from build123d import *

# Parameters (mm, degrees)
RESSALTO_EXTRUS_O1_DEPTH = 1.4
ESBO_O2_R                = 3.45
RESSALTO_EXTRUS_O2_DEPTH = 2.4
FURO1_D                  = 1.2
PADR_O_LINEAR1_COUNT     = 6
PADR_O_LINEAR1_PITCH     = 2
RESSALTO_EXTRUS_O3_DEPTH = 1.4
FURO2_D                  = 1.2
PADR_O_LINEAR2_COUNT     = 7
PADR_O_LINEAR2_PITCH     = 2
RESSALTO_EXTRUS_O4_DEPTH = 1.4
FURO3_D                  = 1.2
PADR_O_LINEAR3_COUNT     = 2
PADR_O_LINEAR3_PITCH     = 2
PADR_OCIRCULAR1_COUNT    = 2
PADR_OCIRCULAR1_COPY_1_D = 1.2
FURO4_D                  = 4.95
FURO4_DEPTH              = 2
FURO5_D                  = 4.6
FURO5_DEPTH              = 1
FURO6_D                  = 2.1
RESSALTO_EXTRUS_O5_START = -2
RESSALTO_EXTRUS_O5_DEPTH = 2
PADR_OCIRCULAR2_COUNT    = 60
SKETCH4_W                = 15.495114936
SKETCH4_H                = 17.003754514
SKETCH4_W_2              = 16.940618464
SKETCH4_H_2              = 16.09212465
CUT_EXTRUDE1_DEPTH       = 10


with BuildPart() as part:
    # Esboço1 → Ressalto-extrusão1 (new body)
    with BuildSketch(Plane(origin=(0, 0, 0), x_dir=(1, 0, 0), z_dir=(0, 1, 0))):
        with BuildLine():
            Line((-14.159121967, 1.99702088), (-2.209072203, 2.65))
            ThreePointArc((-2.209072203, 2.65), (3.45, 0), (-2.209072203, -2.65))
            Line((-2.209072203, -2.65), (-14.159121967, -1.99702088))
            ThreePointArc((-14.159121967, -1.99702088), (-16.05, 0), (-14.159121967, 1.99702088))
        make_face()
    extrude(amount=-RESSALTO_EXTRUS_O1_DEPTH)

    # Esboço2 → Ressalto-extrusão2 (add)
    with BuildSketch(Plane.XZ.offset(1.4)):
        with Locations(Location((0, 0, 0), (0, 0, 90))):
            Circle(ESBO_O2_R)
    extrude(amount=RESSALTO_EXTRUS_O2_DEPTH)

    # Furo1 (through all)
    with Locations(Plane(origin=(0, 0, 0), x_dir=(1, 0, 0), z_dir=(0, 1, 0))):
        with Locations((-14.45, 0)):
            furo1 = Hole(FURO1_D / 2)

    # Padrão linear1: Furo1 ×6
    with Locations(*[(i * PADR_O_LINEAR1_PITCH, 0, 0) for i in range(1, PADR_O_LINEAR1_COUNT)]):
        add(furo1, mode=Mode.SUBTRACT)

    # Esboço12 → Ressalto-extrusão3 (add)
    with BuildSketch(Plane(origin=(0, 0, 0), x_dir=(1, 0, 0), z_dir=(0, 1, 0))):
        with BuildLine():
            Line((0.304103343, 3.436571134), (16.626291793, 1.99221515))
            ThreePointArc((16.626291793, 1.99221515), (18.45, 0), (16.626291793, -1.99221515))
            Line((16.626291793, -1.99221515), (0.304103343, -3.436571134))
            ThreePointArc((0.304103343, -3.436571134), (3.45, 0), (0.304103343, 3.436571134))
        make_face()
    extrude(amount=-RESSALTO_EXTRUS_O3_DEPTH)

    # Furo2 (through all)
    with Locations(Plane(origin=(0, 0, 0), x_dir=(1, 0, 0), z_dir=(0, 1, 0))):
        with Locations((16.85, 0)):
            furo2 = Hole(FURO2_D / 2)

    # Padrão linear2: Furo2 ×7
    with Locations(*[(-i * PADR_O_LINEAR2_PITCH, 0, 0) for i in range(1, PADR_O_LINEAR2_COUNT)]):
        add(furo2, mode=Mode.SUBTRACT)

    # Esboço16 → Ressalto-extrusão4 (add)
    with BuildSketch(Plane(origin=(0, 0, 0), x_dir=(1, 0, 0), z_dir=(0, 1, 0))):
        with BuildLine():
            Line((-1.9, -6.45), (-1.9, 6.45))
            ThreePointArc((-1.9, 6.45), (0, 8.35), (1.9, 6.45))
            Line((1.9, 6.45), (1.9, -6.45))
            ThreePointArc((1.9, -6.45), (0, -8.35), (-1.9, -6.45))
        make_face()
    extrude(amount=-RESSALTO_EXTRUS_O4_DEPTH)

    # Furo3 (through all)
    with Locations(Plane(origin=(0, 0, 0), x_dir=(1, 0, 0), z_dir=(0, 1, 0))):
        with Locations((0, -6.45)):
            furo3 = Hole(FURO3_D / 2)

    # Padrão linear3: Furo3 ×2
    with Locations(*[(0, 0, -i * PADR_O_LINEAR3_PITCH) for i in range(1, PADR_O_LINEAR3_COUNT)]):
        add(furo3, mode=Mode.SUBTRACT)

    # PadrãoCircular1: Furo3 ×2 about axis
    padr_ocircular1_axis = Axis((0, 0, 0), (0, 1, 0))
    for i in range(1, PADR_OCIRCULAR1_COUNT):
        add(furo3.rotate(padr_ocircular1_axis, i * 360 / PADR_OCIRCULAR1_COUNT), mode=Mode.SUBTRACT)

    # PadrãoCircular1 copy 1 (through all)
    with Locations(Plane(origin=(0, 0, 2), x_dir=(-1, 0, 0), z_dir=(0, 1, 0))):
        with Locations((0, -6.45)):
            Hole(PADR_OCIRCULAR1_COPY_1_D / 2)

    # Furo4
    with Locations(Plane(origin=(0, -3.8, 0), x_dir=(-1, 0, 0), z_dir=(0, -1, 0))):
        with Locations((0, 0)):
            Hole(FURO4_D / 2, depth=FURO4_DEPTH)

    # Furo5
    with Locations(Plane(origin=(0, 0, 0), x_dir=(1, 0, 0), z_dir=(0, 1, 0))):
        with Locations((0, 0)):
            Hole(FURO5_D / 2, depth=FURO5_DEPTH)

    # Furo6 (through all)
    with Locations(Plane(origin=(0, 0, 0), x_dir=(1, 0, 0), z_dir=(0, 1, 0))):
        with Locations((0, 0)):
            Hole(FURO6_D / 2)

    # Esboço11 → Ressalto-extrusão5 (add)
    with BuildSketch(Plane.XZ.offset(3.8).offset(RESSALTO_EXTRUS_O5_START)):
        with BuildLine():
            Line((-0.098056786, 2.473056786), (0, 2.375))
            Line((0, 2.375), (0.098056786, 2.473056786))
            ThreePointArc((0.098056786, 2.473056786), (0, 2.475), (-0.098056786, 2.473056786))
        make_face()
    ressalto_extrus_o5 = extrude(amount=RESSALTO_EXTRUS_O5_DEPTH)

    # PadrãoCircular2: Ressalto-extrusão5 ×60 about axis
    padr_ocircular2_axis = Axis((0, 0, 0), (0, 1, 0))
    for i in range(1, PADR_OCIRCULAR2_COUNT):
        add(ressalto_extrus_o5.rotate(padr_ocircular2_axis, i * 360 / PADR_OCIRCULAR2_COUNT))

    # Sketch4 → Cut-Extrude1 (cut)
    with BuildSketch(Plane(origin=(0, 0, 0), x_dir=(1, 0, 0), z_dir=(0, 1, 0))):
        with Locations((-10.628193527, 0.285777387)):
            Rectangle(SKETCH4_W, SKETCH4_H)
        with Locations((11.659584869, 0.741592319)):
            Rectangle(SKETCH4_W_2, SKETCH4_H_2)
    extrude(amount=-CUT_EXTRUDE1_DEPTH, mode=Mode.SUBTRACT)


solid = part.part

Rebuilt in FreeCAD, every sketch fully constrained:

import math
import FreeCAD as App
import Part
import Sketcher
from FreeCAD import Vector
Q = App.Units.Quantity


def add_polygon(sketch, points):
    """Adds a closed chain of lines whose ends are joined by coincident constraints."""
    first, n = sketch.GeometryCount, len(points)
    for a, b in zip(points, points[1:] + points[:1]):
        sketch.addGeometry(Part.LineSegment(App.Vector(*a, 0), App.Vector(*b, 0)), False)
    for i in range(n):
        sketch.addConstraint(Sketcher.Constraint("Coincident", first + i, 2, first + (i + 1) % n, 1))

doc = App.newDocument("Part")
body = doc.addObject("PartDesign::Body", "Body")

sketch1 = body.newObject("Sketcher::SketchObject", "Sketch")
sketch1.AttachmentSupport = (doc.getObject("XZ_Plane"), [""])
sketch1.MapMode = "FlatFace"
sketch1.addGeometry([
    Part.LineSegment(Vector(-2.2, -2.6, 0), Vector(-14.2, -2, 0)),
    Part.ArcOfCircle(Part.Circle(Vector(-14.1, 0, 0), Vector(0, 0, 1), 2), math.radians(93), math.radians(267)),
    Part.LineSegment(Vector(-14.2, 2, 0), Vector(-2.2, 2.6, 0)),
    Part.ArcOfCircle(Part.Circle(Vector(0, 0, 0), Vector(0, 0, 1), 3.5), math.radians(-130), math.radians(130)),
], False)
sketch1.addConstraint([
    Sketcher.Constraint("Tangent", 0, 2, 1, 2),
    Sketcher.Constraint("Tangent", 1, 1, 2, 1),
    Sketcher.Constraint("Coincident", 2, 2, 3, 2),
    Sketcher.Constraint("Coincident", 3, 1, 0, 1),
    Sketcher.Constraint("Coincident", 3, 3, -1, 1),
    Sketcher.Constraint("Symmetric", 0, 2, 1, 1, -1),
    Sketcher.Constraint("Radius", 1, Q("2 mm")),
    Sketcher.Constraint("Radius", 3, Q("3.45 mm")),
    Sketcher.Constraint("DistanceY", 3, 1, 2, 2, Q("5.3 mm")),
    Sketcher.Constraint("DistanceX", 1, 3, -1, 1, Q("14.05 mm")),
])
pad1 = body.newObject("PartDesign::Pad", "Pad")
pad1.Profile = sketch1
pad1.Length = 1.4

sketch2 = body.newObject("Sketcher::SketchObject", "Sketch001")
sketch2.AttachmentSupport = (doc.getObject("XZ_Plane"), [""])
sketch2.MapMode = "FlatFace"
sketch2.AttachmentOffset = App.Placement(Vector(0, 0, 1.4), App.Rotation())
sketch2.addGeometry(Part.Circle(Vector(0, 0, 0), Vector(0, 0, 1), 3.5), False)
sketch2.addConstraint([
    Sketcher.Constraint("Coincident", 0, 3, -1, 1),
    Sketcher.Constraint("Diameter", 0, Q("6.9 mm")),
])
pad2 = body.newObject("PartDesign::Pad", "Pad001")
pad2.Profile = sketch2
pad2.Length = 2.4

sketch3 = body.newObject("Sketcher::SketchObject", "Sketch002")
sketch3.AttachmentSupport = (doc.getObject("XZ_Plane"), [""])
sketch3.MapMode = "FlatFace"
sketch3.addGeometry(Part.Circle(Vector(-14.4, 0, 0), Vector(0, 0, 1), 0.6), False)
sketch3.addConstraint([
    Sketcher.Constraint("PointOnObject", 0, 3, -1),
    Sketcher.Constraint("Diameter", 0, Q("1.2 mm")),
    Sketcher.Constraint("DistanceX", 0, 3, -1, 1, Q("14.45 mm")),
])
doc.recompute()
hole = body.newObject("PartDesign::Hole", "Hole")
hole.Profile = sketch3
hole.ThreadType = "None"
hole.Diameter = 1.2
hole.DepthType = "ThroughAll"
hole.Reversed = True
doc.recompute()

linearpattern = body.newObject("PartDesign::LinearPattern", "LinearPattern")
linearpattern.Originals = [hole]
linearpattern.Direction = (doc.getObject("X_Axis"), [""])
linearpattern.Mode = "offset"
linearpattern.Offset = 2
linearpattern.Occurrences = 6
body.Tip = linearpattern

sketch4 = body.newObject("Sketcher::SketchObject", "Sketch003")
sketch4.AttachmentSupport = (doc.getObject("XZ_Plane"), [""])
sketch4.MapMode = "FlatFace"
sketch4.addGeometry([
    Part.LineSegment(Vector(16.6, -2, 0), Vector(0.3, -3.4, 0)),
    Part.ArcOfCircle(Part.Circle(Vector(0, 0, 0), Vector(0, 0, 1), 3.5), math.radians(-85), math.radians(85)),
    Part.LineSegment(Vector(0.3, 3.4, 0), Vector(16.6, 2, 0)),
    Part.ArcOfCircle(Part.Circle(Vector(16.4, 0, 0), Vector(0, 0, 1), 2), math.radians(-85), math.radians(85)),
], False)
sketch4.addConstraint([
    Sketcher.Constraint("Tangent", 0, 2, 1, 1),
    Sketcher.Constraint("Tangent", 1, 2, 2, 1),
    Sketcher.Constraint("Tangent", 2, 2, 3, 2),
    Sketcher.Constraint("Tangent", 3, 1, 0, 1),
    Sketcher.Constraint("Coincident", 1, 3, -1, 1),
    Sketcher.Constraint("PointOnObject", 3, 3, -1),
    Sketcher.Constraint("Radius", 3, Q("2 mm")),
    Sketcher.Constraint("Radius", 1, Q("3.45 mm")),
    Sketcher.Constraint("DistanceX", -1, 1, 3, 3, Q("16.45 mm")),
])
pad3 = body.newObject("PartDesign::Pad", "Pad002")
pad3.Profile = sketch4
pad3.Length = 1.4

sketch5 = body.newObject("Sketcher::SketchObject", "Sketch004")
sketch5.AttachmentSupport = (doc.getObject("XZ_Plane"), [""])
sketch5.MapMode = "FlatFace"
sketch5.addGeometry(Part.Circle(Vector(16.9, 0, 0), Vector(0, 0, 1), 0.6), False)
sketch5.addConstraint([
    Sketcher.Constraint("PointOnObject", 0, 3, -1),
    Sketcher.Constraint("Diameter", 0, Q("1.2 mm")),
    Sketcher.Constraint("DistanceX", -1, 1, 0, 3, Q("16.85 mm")),
])
doc.recompute()
hole2 = body.newObject("PartDesign::Hole", "Hole001")
hole2.Profile = sketch5
hole2.ThreadType = "None"
hole2.Diameter = 1.2
hole2.DepthType = "ThroughAll"
hole2.Reversed = True
doc.recompute()

linearpattern2 = body.newObject("PartDesign::LinearPattern", "LinearPattern001")
linearpattern2.Originals = [hole2]
linearpattern2.Direction = (doc.getObject("X_Axis"), [""])
linearpattern2.Mode = "offset"
linearpattern2.Offset = 2
linearpattern2.Occurrences = 7
linearpattern2.Reversed = True
body.Tip = linearpattern2

sketch6 = body.newObject("Sketcher::SketchObject", "Sketch005")
sketch6.AttachmentSupport = (doc.getObject("XZ_Plane"), [""])
sketch6.MapMode = "FlatFace"
sketch6.addGeometry([
    Part.LineSegment(Vector(-1.9, -6.5, 0), Vector(-1.9, 6.5, 0)),
    Part.ArcOfCircle(Part.Circle(Vector(0, 6.5, 0), Vector(0, 0, 1), 1.9), math.radians(0), math.radians(180)),
    Part.LineSegment(Vector(1.9, 6.5, 0), Vector(1.9, -6.5, 0)),
    Part.ArcOfCircle(Part.Circle(Vector(0, -6.5, 0), Vector(0, 0, 1), 1.9), math.radians(180), math.radians(360)),
], False)
sketch6.addConstraint([
    Sketcher.Constraint("Tangent", 0, 2, 1, 2),
    Sketcher.Constraint("Tangent", 1, 1, 2, 1),
    Sketcher.Constraint("Tangent", 2, 2, 3, 2),
    Sketcher.Constraint("Tangent", 3, 1, 0, 1),
    Sketcher.Constraint("Vertical", 0),
    Sketcher.Constraint("Vertical", 2),
    Sketcher.Constraint("Symmetric", 1, 3, 3, 3, -1, 1),
    Sketcher.Constraint("Radius", 1, Q("1.9 mm")),
    Sketcher.Constraint("DistanceY", 0, 1, 0, 2, Q("12.9 mm")),
])
pad4 = body.newObject("PartDesign::Pad", "Pad003")
pad4.Profile = sketch6
pad4.Length = 1.4

sketch7 = body.newObject("Sketcher::SketchObject", "Sketch006")
sketch7.AttachmentSupport = (doc.getObject("XZ_Plane"), [""])
sketch7.MapMode = "FlatFace"
sketch7.addGeometry(Part.Circle(Vector(0, 6.5, 0), Vector(0, 0, 1), 0.6), False)
sketch7.addConstraint([
    Sketcher.Constraint("PointOnObject", 0, 3, -2),
    Sketcher.Constraint("Diameter", 0, Q("1.2 mm")),
    Sketcher.Constraint("DistanceY", -1, 1, 0, 3, Q("6.45 mm")),
])
doc.recompute()
hole3 = body.newObject("PartDesign::Hole", "Hole002")
hole3.Profile = sketch7
hole3.ThreadType = "None"
hole3.Diameter = 1.2
hole3.DepthType = "ThroughAll"
hole3.Reversed = True
doc.recompute()

linearpattern3 = body.newObject("PartDesign::LinearPattern", "LinearPattern002")
linearpattern3.Originals = [hole3]
linearpattern3.Direction = (doc.getObject("Z_Axis"), [""])
linearpattern3.Mode = "offset"
linearpattern3.Offset = 2
linearpattern3.Occurrences = 2
linearpattern3.Reversed = True
body.Tip = linearpattern3
doc.recompute()

polarpattern = body.newObject("PartDesign::PolarPattern", "PolarPattern")
polarpattern.Originals = [hole3]
polarpattern.Axis = (doc.getObject("Y_Axis"), [""])
polarpattern.Angle = 360
polarpattern.Occurrences = 2
body.Tip = polarpattern

sketch8 = body.newObject("Sketcher::SketchObject", "Sketch007")
sketch8.AttachmentSupport = (doc.getObject("XZ_Plane"), [""])
sketch8.MapMode = "FlatFace"
sketch8.addGeometry(Part.Circle(Vector(0, -4.5, 0), Vector(0, 0, 1), 0.6), False)
sketch8.addConstraint([
    Sketcher.Constraint("PointOnObject", 0, 3, -2),
    Sketcher.Constraint("Diameter", 0, Q("1.2 mm")),
    Sketcher.Constraint("DistanceY", 0, 3, -1, 1, Q("4.45 mm")),
])
doc.recompute()
hole4 = body.newObject("PartDesign::Hole", "Hole003")
hole4.Profile = sketch8
hole4.ThreadType = "None"
hole4.Diameter = 1.2
hole4.DepthType = "ThroughAll"
hole4.Reversed = True

sketch9 = body.newObject("Sketcher::SketchObject", "Sketch008")
sketch9.AttachmentSupport = (doc.getObject("XZ_Plane"), [""])
sketch9.MapMode = "FlatFace"
sketch9.AttachmentOffset = App.Placement(Vector(0, 0, 3.8), App.Rotation())
sketch9.addGeometry(Part.Circle(Vector(0, 0, 0), Vector(0, 0, 1), 2.5), False)
sketch9.addConstraint([
    Sketcher.Constraint("Coincident", 0, 3, -1, 1),
    Sketcher.Constraint("Diameter", 0, Q("4.95 mm")),
])
doc.recompute()
hole5 = body.newObject("PartDesign::Hole", "Hole004")
hole5.Profile = sketch9
hole5.ThreadType = "None"
hole5.Diameter = 4.95
hole5.DepthType = "Dimension"
hole5.Depth = 2
hole5.DrillPoint = "Flat"

sketch10 = body.newObject("Sketcher::SketchObject", "Sketch009")
sketch10.AttachmentSupport = (doc.getObject("XZ_Plane"), [""])
sketch10.MapMode = "FlatFace"
sketch10.addGeometry(Part.Circle(Vector(0, 0, 0), Vector(0, 0, 1), 2.3), False)
sketch10.addConstraint([
    Sketcher.Constraint("Coincident", 0, 3, -1, 1),
    Sketcher.Constraint("Diameter", 0, Q("4.6 mm")),
])
doc.recompute()
hole6 = body.newObject("PartDesign::Hole", "Hole005")
hole6.Profile = sketch10
hole6.ThreadType = "None"
hole6.Diameter = 4.6
hole6.DepthType = "Dimension"
hole6.Depth = 1
hole6.DrillPoint = "Flat"
hole6.Reversed = True

sketch11 = body.newObject("Sketcher::SketchObject", "Sketch010")
sketch11.AttachmentSupport = (doc.getObject("XZ_Plane"), [""])
sketch11.MapMode = "FlatFace"
sketch11.addGeometry(Part.Circle(Vector(0, 0, 0), Vector(0, 0, 1), 1.1), False)
sketch11.addConstraint([
    Sketcher.Constraint("Coincident", 0, 3, -1, 1),
    Sketcher.Constraint("Diameter", 0, Q("2.1 mm")),
])
doc.recompute()
hole7 = body.newObject("PartDesign::Hole", "Hole006")
hole7.Profile = sketch11
hole7.ThreadType = "None"
hole7.Diameter = 2.1
hole7.DepthType = "ThroughAll"
hole7.Reversed = True

sketch12 = body.newObject("Sketcher::SketchObject", "Sketch011")
sketch12.AttachmentSupport = (doc.getObject("XZ_Plane"), [""])
sketch12.MapMode = "FlatFace"
sketch12.AttachmentOffset = App.Placement(Vector(0, 0, 1.8), App.Rotation())
sketch12.addGeometry([
    Part.LineSegment(Vector(-0.1, 2.47, 0), Vector(0, 2.38, 0)),
    Part.LineSegment(Vector(0, 2.38, 0), Vector(0.1, 2.47, 0)),
    Part.ArcOfCircle(Part.Circle(Vector(0, 0, 0), Vector(0, 0, 1), 2.48), math.radians(87.73), math.radians(92.27)),
], False)
sketch12.addConstraint([
    Sketcher.Constraint("Coincident", 0, 2, 1, 1),
    Sketcher.Constraint("Coincident", 1, 2, 2, 1),
    Sketcher.Constraint("Coincident", 2, 2, 0, 1),
    Sketcher.Constraint("Coincident", 2, 3, -1, 1),
    Sketcher.Constraint("PointOnObject", 0, 2, -2),
    Sketcher.Constraint("Perpendicular", 0, 1),
    Sketcher.Constraint("Horizontal", 1, 2, 2, 2),
    Sketcher.Constraint("Radius", 2, Q("2.475 mm")),
    Sketcher.Constraint("DistanceY", -1, 1, 0, 2, Q("2.375 mm")),
])
pad5 = body.newObject("PartDesign::Pad", "Pad004")
pad5.Profile = sketch12
pad5.Length = 2
doc.recompute()

polarpattern2 = body.newObject("PartDesign::PolarPattern", "PolarPattern001")
polarpattern2.Originals = [pad5]
polarpattern2.Axis = (doc.getObject("Y_Axis"), [""])
polarpattern2.Angle = 360
polarpattern2.Occurrences = 60
body.Tip = polarpattern2

sketch13 = body.newObject("Sketcher::SketchObject", "Sketch012")
sketch13.AttachmentSupport = (doc.getObject("XZ_Plane"), [""])
sketch13.MapMode = "FlatFace"
add_polygon(sketch13, [(-18, -9), (-18, 8), (-3, 8), (-3, -9)])
add_polygon(sketch13, [(3, -9), (3, 7), (20, 7), (20, -9)])
sketch13.addConstraint([
    Sketcher.Constraint("Vertical", 0),
    Sketcher.Constraint("Horizontal", 1),
    Sketcher.Constraint("Vertical", 2),
    Sketcher.Constraint("Horizontal", 3),
    Sketcher.Constraint("Vertical", 4),
    Sketcher.Constraint("Horizontal", 5),
    Sketcher.Constraint("Vertical", 6),
    Sketcher.Constraint("Horizontal", 7),
    Sketcher.Constraint("Horizontal", 3, 2, 6, 2),
    Sketcher.Constraint("DistanceX", 5, 1, 5, 2, Q("16.940618 mm")),
    Sketcher.Constraint("DistanceY", -1, 1, 0, 2, Q("8.2161 mm")),
    Sketcher.Constraint("DistanceX", 1, 1, 1, 2, Q("15.495115 mm")),
    Sketcher.Constraint("DistanceY", 0, 1, 0, 2, Q("17.003755 mm")),
    Sketcher.Constraint("DistanceY", 4, 1, 4, 2, Q("16.092125 mm")),
    Sketcher.Constraint("DistanceX", 0, 2, -1, 1, Q("18.375751 mm")),
    Sketcher.Constraint("DistanceX", 1, 2, 4, 2, Q("6.069912 mm")),
])
pocket1 = body.newObject("PartDesign::Pocket", "Pocket")
pocket1.Profile = sketch13
pocket1.Length = 10
pocket1.Reversed = True

doc.recompute()
